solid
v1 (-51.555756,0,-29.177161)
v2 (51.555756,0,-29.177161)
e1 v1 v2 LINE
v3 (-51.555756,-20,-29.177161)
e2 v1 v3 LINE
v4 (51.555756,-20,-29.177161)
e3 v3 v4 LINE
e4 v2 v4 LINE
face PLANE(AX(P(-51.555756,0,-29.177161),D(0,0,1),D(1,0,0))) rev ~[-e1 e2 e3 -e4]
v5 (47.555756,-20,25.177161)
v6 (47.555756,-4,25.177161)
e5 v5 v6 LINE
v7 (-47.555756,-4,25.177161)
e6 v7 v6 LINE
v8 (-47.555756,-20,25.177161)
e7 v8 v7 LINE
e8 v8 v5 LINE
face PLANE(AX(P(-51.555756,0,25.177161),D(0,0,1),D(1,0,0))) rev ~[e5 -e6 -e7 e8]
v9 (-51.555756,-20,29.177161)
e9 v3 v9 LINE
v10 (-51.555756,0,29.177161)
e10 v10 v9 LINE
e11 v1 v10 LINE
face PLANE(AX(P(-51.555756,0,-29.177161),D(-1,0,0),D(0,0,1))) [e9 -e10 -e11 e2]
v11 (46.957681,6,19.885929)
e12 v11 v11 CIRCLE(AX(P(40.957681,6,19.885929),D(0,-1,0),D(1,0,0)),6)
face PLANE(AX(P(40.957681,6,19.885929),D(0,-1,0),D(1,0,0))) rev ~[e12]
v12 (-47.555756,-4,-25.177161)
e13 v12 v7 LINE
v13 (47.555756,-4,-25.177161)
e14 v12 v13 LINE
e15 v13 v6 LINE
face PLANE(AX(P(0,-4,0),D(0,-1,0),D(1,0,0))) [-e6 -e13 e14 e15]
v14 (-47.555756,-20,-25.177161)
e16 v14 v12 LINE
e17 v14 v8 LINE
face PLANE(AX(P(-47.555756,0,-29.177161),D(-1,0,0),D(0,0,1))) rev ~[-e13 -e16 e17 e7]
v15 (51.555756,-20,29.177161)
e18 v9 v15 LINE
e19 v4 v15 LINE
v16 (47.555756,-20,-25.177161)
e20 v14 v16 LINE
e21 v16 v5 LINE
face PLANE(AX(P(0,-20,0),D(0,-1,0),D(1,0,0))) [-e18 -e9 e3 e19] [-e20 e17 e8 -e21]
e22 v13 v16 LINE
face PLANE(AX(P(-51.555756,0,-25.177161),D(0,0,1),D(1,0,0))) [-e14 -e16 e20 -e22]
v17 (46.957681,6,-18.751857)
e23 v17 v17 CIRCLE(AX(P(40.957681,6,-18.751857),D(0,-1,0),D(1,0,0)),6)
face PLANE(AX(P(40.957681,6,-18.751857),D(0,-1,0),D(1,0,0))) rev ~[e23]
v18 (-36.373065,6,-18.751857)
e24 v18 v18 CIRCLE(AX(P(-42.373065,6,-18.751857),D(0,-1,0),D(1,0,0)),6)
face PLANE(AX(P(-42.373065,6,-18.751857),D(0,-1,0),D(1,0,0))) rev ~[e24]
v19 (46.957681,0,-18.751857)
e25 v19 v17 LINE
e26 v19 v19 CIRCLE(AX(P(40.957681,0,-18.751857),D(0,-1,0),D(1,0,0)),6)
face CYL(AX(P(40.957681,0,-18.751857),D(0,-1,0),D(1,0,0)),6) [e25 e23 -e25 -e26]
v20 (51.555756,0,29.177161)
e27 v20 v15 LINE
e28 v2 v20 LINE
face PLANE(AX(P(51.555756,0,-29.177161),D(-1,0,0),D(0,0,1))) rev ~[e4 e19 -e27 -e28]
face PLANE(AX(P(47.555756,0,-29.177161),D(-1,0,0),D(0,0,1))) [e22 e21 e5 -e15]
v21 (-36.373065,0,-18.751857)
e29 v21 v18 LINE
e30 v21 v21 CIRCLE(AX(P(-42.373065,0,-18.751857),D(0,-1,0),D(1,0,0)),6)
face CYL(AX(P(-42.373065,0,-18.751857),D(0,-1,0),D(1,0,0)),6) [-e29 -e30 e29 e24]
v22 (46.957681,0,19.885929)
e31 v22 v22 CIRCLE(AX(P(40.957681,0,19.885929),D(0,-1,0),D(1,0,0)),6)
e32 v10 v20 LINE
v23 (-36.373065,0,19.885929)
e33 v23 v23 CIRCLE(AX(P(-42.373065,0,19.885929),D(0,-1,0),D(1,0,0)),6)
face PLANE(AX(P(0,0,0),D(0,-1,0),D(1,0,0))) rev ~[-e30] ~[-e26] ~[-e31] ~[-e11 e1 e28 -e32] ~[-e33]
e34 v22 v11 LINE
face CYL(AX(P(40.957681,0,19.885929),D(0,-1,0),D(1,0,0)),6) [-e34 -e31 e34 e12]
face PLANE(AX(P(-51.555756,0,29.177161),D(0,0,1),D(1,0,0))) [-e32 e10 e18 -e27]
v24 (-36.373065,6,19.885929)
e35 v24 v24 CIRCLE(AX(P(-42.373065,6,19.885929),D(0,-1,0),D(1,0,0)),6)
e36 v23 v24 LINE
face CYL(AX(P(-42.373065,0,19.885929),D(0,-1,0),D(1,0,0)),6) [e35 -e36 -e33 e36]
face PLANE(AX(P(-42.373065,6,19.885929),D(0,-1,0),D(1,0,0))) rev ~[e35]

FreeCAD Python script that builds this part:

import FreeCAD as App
import Part
import Sketcher

V = App.Vector


def faces_at(feature, points):
    """Names of the faces that lie closest to the given points."""
    faces = feature.Shape.Faces
    near = lambda p: min(range(len(faces)), key=lambda i: faces[i].distToShape(Part.Vertex(*p))[0])
    return sorted({f"Face{near(p) + 1}" for p in points})

doc = App.newDocument("Part")
body = doc.addObject("PartDesign::Body", "Body")

sketch1 = doc.addObject("Sketcher::SketchObject", "Sketch")
body.addObject(sketch1)
sketch1.AttachmentSupport = (doc.XZ_Plane, [""])
sketch1.MapMode = "FlatFace"
sketch1.addGeometry([
    Part.LineSegment(V(-51.555756, 29.177161, 0), V(-51.555756, -29.177161, 0)),
    Part.LineSegment(V(-51.555756, -29.177161, 0), V(51.555756, -29.177161, 0)),
    Part.LineSegment(V(51.555756, -29.177161, 0), V(51.555756, 29.177161, 0)),
    Part.LineSegment(V(51.555756, 29.177161, 0), V(-51.555756, 29.177161, 0)),
], False)
sketch1.addConstraint([
    Sketcher.Constraint("Coincident", 0, 2, 1, 1),
    Sketcher.Constraint("Coincident", 1, 2, 2, 1),
    Sketcher.Constraint("Coincident", 2, 2, 3, 1),
    Sketcher.Constraint("Coincident", 3, 2, 0, 1),
    Sketcher.Constraint("Vertical", 0),
    Sketcher.Constraint("Horizontal", 1),
    Sketcher.Constraint("Vertical", 2),
    Sketcher.Constraint("Horizontal", 3),
    Sketcher.Constraint("Symmetric", 0, 2, 2, 2, -1, 1),
    Sketcher.Constraint("DistanceX", 1, 1, 1, 2, 103.111512),
    Sketcher.Constraint("DistanceY", 0, 2, 0, 1, 58.354322),
])
pad1 = doc.addObject("PartDesign::Pad", "Pad")
body.addObject(pad1)
pad1.Profile = sketch1
pad1.Length = 20
doc.recompute()

thickness = doc.addObject("PartDesign::Thickness", "Thickness")
body.addObject(thickness)
thickness.Base = (pad1, faces_at(pad1, [(0, -20, 0)]))
thickness.Value = 4
thickness.Reversed = True
thickness.Join = "Arc"

sketch2 = doc.addObject("Sketcher::SketchObject", "Sketch001")
body.addObject(sketch2)
sketch2.AttachmentSupport = (doc.XZ_Plane, [""])
sketch2.MapMode = "FlatFace"
sketch2.addGeometry([
    Part.Circle(V(-42.373065, -18.751857, 0), V(0, 0, 1), 6),
    Part.Circle(V(40.957681, -18.751857, 0), V(0, 0, 1), 6),
    Part.Circle(V(40.957681, 19.885929, 0), V(0, 0, 1), 6),
    Part.Circle(V(-42.373065, 19.885929, 0), V(0, 0, 1), 6),
], False)
sketch2.addConstraint([
    Sketcher.Constraint("Equal", 0, 1),
    Sketcher.Constraint("Equal", 1, 2),
    Sketcher.Constraint("Equal", 2, 3),
    Sketcher.Constraint("Horizontal", 0, 3, 1, 3),
    Sketcher.Constraint("Horizontal", 2, 3, 3, 3),
    Sketcher.Constraint("Vertical", 1, 3, 2, 3),
    Sketcher.Constraint("Vertical", 0, 3, 3, 3),
    Sketcher.Constraint("Diameter", 0, 12.0),
    Sketcher.Constraint("DistanceX", -1, 1, 1, 3, 40.957681),
    Sketcher.Constraint("DistanceY", -1, 1, 2, 3, 19.885929),
    Sketcher.Constraint("DistanceX", 0, 3, -1, 1, 42.373065),
    Sketcher.Constraint("DistanceY", 0, 3, -1, 1, 18.751857),
])
pad2 = doc.addObject("PartDesign::Pad", "Pad001")
body.addObject(pad2)
pad2.Profile = sketch2
pad2.Length = 6
pad2.Reversed = True

doc.recompute()
